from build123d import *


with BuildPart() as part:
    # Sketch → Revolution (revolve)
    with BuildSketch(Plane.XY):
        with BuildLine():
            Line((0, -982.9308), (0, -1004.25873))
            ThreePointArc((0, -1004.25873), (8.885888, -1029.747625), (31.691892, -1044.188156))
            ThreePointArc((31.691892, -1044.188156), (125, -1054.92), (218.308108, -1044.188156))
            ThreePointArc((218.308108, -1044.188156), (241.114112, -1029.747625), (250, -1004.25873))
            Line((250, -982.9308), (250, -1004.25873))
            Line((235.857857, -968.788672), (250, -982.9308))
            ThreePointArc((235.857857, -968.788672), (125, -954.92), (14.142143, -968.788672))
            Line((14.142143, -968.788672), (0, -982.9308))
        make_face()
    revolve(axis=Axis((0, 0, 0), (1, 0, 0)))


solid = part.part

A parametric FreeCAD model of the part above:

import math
import FreeCAD as App
import Part
import Sketcher

V = App.Vector
Q = App.Units.Quantity

doc = App.newDocument("Part")
params = doc.addObject("Spreadsheet::Sheet", "Params")
for row, (alias, value) in enumerate([
    ("sketch1_radius", "41 mm"),
    ("sketch1_length", "20 mm"),
    ("revolution_angle", "360 deg"),
], start=1):
    params.set(f"A{row}", alias)
    params.set(f"B{row}", "=" + value)
    params.setAlias(f"B{row}", alias)

body = doc.addObject("PartDesign::Body", "Body")

sketch1 = body.newObject("Sketcher::SketchObject", "Sketch")
sketch1.AttachmentSupport = (doc.getObject("XY_Plane"), [""])
sketch1.MapMode = "FlatFace"
sketch1.addGeometry(Part.LineSegment(V(0, -983, 0), V(0, -1004, 0)), False)
sketch1.addGeometry(Part.ArcOfCircle(Part.Circle(V(41, -1004, 0), V(0, 0, 1), 41), math.radians(-180), math.radians(-103)), False)
sketch1.addGeometry(Part.ArcOfCircle(Part.Circle(V(125, -644, 0), V(0, 0, 1), 411), math.radians(-103), math.radians(-77)), False)
sketch1.addGeometry(Part.ArcOfCircle(Part.Circle(V(209, -1004, 0), V(0, 0, 1), 41), math.radians(-77), math.radians(0)), False)
sketch1.addGeometry(Part.LineSegment(V(250, -1004, 0), V(250, -983, 0)), False)
sketch1.addGeometry(Part.LineSegment(V(250, -983, 0), V(236, -969, 0)), False)
sketch1.addGeometry(Part.ArcOfCircle(Part.Circle(V(125, -1405, 0), V(0, 0, 1), 450), math.radians(76), math.radians(104)), False)
sketch1.addGeometry(Part.LineSegment(V(14, -969, 0), V(0, -983, 0)), False)
sketch1.addConstraint(Sketcher.Constraint("Tangent", 0, 2, 1, 1))
sketch1.addConstraint(Sketcher.Constraint("Tangent", 1, 2, 2, 1))
sketch1.addConstraint(Sketcher.Constraint("Tangent", 2, 2, 3, 1))
sketch1.addConstraint(Sketcher.Constraint("Tangent", 3, 2, 4, 1))
sketch1.addConstraint(Sketcher.Constraint("Coincident", 4, 2, 5, 1))
sketch1.addConstraint(Sketcher.Constraint("Coincident", 5, 2, 6, 1))
sketch1.addConstraint(Sketcher.Constraint("Coincident", 6, 2, 7, 1))
sketch1.addConstraint(Sketcher.Constraint("Coincident", 7, 2, 0, 1))
sketch1.addConstraint(Sketcher.Constraint("Vertical", 0))
sketch1.addConstraint(Sketcher.Constraint("Vertical", 4))
sketch1.addConstraint(Sketcher.Constraint("Equal", 1, 3))
sketch1.addConstraint(Sketcher.Constraint("PointOnObject", 0, 2, -2))
sketch1.addConstraint(Sketcher.Constraint("Perpendicular", 5, 7))
sketch1.addConstraint(Sketcher.Constraint("Horizontal", 1, 3, 3, 3))
sketch1.addConstraint(Sketcher.Constraint("Horizontal", 5, 2, 6, 2))
sketch1.addConstraint(Sketcher.Constraint("Horizontal", 4, 2, 7, 2))
sketch1.addConstraint(Sketcher.Constraint("Vertical", 2, 3, 6, 3))
sketch1.addConstraint(Sketcher.Constraint("Radius", 1, Q("41 mm")))
sketch1.addConstraint(Sketcher.Constraint("Distance", 5, Q("20 mm")))
sketch1.addConstraint(Sketcher.Constraint("DistanceX", -1, 1, 2, 3, Q("125 mm")))
sketch1.addConstraint(Sketcher.Constraint("Radius", 6, Q("449.99999 mm")))
sketch1.addConstraint(Sketcher.Constraint("Radius", 2, Q("410.999987 mm")))
sketch1.addConstraint(Sketcher.Constraint("DistanceY", 0, 2, 0, 1, Q("21.32793 mm")))
sketch1.addConstraint(Sketcher.Constraint("DistanceY", 4, 2, -1, 1, Q("982.9308 mm")))
sketch1.setExpression("Constraints[17]", "Params.sketch1_radius")
sketch1.setExpression("Constraints[18]", "Params.sketch1_length")
revolution = body.newObject("PartDesign::Revolution", "Revolution")
revolution.Profile = sketch1
revolution.ReferenceAxis = (sketch1, ["H_Axis"])
revolution.setExpression("Angle", "Params.revolution_angle")

doc.recompute()
